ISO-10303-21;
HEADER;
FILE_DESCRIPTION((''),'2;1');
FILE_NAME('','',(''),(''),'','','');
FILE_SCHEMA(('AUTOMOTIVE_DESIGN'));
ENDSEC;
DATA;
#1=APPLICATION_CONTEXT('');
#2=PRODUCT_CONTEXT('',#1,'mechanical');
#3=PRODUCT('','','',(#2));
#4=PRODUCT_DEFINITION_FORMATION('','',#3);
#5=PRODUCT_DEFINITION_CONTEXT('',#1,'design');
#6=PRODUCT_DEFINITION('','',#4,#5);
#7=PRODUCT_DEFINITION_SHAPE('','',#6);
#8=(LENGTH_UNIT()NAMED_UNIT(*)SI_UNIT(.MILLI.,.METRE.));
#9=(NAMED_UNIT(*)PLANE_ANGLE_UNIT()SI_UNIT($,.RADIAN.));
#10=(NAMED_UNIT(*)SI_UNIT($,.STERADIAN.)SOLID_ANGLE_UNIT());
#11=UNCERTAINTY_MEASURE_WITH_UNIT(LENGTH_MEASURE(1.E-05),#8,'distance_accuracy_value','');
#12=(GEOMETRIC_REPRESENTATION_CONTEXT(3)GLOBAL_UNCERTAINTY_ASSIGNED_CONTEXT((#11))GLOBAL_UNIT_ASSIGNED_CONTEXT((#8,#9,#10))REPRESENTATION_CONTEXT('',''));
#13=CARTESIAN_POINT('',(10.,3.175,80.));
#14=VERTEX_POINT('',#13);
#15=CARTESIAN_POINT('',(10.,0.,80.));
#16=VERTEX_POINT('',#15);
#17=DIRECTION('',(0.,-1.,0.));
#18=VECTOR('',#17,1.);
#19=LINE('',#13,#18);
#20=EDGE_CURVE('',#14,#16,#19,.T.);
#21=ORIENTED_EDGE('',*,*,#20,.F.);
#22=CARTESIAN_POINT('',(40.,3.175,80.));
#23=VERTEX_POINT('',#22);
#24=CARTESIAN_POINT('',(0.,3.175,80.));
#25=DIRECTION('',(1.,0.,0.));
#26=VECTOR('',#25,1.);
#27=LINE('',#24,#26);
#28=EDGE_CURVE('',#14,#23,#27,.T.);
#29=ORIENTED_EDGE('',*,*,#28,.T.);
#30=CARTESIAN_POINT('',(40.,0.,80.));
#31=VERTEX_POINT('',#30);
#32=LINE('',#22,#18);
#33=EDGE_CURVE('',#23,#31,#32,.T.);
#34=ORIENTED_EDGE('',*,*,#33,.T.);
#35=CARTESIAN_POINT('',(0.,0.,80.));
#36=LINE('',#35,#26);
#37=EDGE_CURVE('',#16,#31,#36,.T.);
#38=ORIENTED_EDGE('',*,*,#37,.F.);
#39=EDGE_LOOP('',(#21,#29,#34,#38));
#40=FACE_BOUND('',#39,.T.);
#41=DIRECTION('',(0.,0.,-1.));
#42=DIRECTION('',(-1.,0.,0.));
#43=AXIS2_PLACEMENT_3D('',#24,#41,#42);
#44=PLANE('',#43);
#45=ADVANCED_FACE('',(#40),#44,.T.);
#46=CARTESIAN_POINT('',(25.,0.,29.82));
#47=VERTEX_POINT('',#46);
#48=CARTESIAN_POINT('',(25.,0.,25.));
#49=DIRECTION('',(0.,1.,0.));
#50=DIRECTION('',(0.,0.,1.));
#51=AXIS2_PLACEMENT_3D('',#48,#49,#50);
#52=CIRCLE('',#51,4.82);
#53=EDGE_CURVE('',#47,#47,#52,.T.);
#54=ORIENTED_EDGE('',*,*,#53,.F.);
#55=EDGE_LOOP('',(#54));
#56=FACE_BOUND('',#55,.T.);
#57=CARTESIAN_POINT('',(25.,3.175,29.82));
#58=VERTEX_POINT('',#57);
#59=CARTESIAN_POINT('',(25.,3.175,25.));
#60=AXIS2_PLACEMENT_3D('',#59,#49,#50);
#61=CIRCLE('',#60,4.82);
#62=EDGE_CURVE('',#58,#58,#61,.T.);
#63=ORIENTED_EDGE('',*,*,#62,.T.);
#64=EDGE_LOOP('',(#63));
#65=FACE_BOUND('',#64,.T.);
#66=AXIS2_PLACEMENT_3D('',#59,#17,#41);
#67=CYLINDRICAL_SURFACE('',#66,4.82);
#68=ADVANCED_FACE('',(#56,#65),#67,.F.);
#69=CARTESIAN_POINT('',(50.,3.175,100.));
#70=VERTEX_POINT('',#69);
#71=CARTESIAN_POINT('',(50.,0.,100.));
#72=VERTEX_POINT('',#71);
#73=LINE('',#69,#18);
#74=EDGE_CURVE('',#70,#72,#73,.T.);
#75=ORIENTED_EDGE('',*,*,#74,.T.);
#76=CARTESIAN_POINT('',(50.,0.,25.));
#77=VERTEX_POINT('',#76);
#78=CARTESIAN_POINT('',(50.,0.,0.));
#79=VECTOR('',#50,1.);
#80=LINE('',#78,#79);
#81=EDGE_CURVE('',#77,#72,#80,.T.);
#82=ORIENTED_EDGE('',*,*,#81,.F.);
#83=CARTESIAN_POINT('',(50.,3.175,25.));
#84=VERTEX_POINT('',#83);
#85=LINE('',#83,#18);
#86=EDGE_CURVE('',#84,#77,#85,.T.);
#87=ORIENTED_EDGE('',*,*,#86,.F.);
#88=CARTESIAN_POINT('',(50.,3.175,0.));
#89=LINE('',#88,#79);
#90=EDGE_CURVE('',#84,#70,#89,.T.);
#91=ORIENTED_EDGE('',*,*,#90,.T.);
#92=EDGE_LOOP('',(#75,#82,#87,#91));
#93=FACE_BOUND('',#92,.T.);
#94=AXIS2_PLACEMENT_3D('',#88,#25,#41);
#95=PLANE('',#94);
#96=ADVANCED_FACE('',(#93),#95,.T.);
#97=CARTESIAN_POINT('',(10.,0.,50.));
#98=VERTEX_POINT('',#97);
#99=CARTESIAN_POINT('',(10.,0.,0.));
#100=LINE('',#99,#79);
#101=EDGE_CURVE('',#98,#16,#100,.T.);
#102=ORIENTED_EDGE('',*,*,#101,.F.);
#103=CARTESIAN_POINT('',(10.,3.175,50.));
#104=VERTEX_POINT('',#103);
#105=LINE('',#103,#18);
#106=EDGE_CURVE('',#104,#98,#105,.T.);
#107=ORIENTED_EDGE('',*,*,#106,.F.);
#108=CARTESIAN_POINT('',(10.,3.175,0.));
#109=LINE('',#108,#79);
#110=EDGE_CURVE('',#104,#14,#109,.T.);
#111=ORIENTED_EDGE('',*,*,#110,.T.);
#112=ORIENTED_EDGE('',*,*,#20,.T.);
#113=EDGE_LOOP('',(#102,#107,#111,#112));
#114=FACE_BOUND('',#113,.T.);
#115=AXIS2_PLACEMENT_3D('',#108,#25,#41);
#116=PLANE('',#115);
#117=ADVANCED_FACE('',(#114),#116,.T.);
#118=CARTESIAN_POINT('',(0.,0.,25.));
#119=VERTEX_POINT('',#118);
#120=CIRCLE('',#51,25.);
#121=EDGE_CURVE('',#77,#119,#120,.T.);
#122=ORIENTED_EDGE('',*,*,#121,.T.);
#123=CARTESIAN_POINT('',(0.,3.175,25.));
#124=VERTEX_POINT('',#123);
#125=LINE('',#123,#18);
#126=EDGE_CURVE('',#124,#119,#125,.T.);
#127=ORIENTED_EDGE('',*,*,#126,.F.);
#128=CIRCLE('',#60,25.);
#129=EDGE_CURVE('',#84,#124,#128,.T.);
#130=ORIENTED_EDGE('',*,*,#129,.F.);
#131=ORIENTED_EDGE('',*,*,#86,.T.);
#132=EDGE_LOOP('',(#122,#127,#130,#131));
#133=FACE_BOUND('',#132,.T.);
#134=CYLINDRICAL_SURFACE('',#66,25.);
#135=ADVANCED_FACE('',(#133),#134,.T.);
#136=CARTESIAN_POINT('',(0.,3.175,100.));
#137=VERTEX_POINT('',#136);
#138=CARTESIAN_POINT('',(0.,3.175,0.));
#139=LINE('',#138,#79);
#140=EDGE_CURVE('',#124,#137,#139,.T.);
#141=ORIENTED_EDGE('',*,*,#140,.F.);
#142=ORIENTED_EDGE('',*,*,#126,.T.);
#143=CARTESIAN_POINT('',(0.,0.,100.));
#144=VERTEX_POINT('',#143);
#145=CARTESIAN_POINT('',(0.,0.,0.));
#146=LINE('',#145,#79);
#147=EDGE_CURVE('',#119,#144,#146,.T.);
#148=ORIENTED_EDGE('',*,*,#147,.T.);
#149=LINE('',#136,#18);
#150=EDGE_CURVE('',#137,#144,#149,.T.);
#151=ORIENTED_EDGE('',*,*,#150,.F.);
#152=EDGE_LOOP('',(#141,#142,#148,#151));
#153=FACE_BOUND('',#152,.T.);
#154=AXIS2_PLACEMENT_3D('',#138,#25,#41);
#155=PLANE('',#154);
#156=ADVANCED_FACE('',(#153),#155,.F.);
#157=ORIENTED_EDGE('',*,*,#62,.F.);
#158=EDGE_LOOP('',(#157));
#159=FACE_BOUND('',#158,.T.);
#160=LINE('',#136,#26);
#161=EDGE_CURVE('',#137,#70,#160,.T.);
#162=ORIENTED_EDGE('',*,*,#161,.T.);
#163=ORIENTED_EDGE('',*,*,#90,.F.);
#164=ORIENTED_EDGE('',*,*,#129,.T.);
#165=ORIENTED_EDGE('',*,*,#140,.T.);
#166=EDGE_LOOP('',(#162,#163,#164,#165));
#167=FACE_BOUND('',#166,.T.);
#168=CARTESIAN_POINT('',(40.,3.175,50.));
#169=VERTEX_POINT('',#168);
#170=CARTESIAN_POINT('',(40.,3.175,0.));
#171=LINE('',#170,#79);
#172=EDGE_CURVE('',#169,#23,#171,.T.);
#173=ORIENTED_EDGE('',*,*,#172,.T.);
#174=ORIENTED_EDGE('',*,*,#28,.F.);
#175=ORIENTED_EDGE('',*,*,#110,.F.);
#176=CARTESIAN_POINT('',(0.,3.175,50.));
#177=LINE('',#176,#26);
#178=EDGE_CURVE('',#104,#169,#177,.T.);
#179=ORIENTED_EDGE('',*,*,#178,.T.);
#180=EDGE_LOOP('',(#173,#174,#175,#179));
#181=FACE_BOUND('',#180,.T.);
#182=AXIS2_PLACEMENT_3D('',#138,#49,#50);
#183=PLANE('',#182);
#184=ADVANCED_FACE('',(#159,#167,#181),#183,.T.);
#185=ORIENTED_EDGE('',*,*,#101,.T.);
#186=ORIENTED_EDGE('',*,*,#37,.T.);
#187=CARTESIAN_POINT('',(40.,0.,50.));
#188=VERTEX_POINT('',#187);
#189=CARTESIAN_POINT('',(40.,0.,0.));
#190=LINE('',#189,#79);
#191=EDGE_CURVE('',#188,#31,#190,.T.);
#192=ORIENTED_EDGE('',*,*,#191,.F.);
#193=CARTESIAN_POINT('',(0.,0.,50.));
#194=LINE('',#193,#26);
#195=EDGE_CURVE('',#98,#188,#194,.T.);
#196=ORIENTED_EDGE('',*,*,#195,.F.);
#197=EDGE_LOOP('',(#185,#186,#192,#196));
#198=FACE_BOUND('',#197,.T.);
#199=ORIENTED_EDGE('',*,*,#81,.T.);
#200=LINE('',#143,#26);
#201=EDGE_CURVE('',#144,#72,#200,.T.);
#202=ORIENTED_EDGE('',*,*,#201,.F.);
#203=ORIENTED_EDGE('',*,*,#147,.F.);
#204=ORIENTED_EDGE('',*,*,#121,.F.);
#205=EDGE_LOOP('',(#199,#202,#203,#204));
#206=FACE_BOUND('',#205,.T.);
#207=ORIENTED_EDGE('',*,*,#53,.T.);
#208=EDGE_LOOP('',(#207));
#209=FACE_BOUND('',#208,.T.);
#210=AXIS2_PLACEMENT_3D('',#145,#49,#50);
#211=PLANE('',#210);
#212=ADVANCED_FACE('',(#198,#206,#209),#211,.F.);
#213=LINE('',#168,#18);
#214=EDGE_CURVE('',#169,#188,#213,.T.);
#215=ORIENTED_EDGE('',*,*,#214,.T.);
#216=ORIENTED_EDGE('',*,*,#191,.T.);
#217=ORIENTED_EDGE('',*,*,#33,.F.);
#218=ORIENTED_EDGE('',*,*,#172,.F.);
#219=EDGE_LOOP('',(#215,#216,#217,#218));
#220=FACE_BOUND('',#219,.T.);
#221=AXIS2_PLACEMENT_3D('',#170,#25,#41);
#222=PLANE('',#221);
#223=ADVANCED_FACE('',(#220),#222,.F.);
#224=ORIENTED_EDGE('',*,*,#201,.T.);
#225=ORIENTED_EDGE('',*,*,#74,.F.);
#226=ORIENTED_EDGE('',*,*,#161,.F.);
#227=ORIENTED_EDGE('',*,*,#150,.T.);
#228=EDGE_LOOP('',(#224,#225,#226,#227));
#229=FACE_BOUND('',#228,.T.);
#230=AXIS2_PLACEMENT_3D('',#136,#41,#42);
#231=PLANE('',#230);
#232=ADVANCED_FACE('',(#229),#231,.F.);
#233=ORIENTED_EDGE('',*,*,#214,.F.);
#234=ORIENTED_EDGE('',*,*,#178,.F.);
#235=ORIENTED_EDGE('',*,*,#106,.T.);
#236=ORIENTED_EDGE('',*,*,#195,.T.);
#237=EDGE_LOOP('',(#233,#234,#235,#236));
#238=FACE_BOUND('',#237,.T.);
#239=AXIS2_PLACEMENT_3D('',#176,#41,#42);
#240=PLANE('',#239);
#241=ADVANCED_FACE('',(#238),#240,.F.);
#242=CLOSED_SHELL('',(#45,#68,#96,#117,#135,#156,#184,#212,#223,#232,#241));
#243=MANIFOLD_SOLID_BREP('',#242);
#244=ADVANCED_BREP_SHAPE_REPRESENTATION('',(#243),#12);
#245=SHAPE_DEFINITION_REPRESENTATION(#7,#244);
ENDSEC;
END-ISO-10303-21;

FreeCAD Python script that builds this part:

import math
import FreeCAD as App
import Part
import Sketcher


def add_polygon(sketch, points):
    """Adds a closed chain of lines whose ends are joined by coincident constraints."""
    first, n = sketch.GeometryCount, len(points)
    for a, b in zip(points, points[1:] + points[:1]):
        sketch.addGeometry(Part.LineSegment(App.Vector(*a, 0), App.Vector(*b, 0)), False)
    for i in range(n):
        sketch.addConstraint(Sketcher.Constraint("Coincident", first + i, 2, first + (i + 1) % n, 1))

doc = App.newDocument("Part")
body = doc.addObject("PartDesign::Body", "Body")

# Sketch on XZ plane
sketch1 = body.newObject("Sketcher::SketchObject", "Sketch")
sketch1.AttachmentSupport = (doc.getObject("XZ_Plane"), [""])
sketch1.MapMode = "FlatFace"
sketch1.addGeometry(Part.ArcOfCircle(Part.Circle(App.Vector(25, 25, 0), App.Vector(0, 0, 1), 25), math.radians(180), math.radians(360)), False)  # 0
sketch1.addGeometry(Part.LineSegment(App.Vector(0, 25, 0), App.Vector(0, 100, 0)), False)  # 1
sketch1.addGeometry(Part.LineSegment(App.Vector(0, 100, 0), App.Vector(50, 100, 0)), False)  # 2
sketch1.addGeometry(Part.LineSegment(App.Vector(50, 100, 0), App.Vector(50, 25, 0)), False)  # 3
add_polygon(sketch1, [(40, 80), (10, 80), (10, 50), (40, 50)])  # lines 4-7
sketch1.addGeometry(Part.Circle(App.Vector(25, 25, 0), App.Vector(0, 0, 1), 4.8), False)  # 8
sketch1.addConstraint([
    Sketcher.Constraint("Tangent", 0, 1, 1, 1),
    Sketcher.Constraint("Coincident", 1, 2, 2, 1),
    Sketcher.Constraint("Coincident", 2, 2, 3, 1),
    Sketcher.Constraint("Tangent", 3, 2, 0, 2),
    Sketcher.Constraint("Vertical", 1),
    Sketcher.Constraint("Horizontal", 2),
    Sketcher.Constraint("Vertical", 3),
    Sketcher.Constraint("Horizontal", 4),
    Sketcher.Constraint("Vertical", 5),
    Sketcher.Constraint("Horizontal", 6),
    Sketcher.Constraint("Vertical", 7),
    Sketcher.Constraint("Coincident", 8, 3, 0, 3),
    Sketcher.Constraint("PointOnObject", 0, 1, -2),
    Sketcher.Constraint("Equal", 6, 5),
    Sketcher.Constraint("Radius", 0, 25.0),
    Sketcher.Constraint("Diameter", 8, 9.64),
    Sketcher.Constraint("DistanceX", 4, 2, 4, 1, 30.0),
    Sketcher.Constraint("DistanceY", 1, 1, 1, 2, 75.0),
    Sketcher.Constraint("DistanceY", -1, 1, 0, 3, 25.0),
    Sketcher.Constraint("DistanceX", -1, 1, 4, 2, 10.0),
    Sketcher.Constraint("DistanceY", -1, 1, 4, 2, 80.0),
])
pad1 = body.newObject("PartDesign::Pad", "Pad")
pad1.Profile = sketch1
pad1.Length = 3.175
pad1.Reversed = True

doc.recompute()
